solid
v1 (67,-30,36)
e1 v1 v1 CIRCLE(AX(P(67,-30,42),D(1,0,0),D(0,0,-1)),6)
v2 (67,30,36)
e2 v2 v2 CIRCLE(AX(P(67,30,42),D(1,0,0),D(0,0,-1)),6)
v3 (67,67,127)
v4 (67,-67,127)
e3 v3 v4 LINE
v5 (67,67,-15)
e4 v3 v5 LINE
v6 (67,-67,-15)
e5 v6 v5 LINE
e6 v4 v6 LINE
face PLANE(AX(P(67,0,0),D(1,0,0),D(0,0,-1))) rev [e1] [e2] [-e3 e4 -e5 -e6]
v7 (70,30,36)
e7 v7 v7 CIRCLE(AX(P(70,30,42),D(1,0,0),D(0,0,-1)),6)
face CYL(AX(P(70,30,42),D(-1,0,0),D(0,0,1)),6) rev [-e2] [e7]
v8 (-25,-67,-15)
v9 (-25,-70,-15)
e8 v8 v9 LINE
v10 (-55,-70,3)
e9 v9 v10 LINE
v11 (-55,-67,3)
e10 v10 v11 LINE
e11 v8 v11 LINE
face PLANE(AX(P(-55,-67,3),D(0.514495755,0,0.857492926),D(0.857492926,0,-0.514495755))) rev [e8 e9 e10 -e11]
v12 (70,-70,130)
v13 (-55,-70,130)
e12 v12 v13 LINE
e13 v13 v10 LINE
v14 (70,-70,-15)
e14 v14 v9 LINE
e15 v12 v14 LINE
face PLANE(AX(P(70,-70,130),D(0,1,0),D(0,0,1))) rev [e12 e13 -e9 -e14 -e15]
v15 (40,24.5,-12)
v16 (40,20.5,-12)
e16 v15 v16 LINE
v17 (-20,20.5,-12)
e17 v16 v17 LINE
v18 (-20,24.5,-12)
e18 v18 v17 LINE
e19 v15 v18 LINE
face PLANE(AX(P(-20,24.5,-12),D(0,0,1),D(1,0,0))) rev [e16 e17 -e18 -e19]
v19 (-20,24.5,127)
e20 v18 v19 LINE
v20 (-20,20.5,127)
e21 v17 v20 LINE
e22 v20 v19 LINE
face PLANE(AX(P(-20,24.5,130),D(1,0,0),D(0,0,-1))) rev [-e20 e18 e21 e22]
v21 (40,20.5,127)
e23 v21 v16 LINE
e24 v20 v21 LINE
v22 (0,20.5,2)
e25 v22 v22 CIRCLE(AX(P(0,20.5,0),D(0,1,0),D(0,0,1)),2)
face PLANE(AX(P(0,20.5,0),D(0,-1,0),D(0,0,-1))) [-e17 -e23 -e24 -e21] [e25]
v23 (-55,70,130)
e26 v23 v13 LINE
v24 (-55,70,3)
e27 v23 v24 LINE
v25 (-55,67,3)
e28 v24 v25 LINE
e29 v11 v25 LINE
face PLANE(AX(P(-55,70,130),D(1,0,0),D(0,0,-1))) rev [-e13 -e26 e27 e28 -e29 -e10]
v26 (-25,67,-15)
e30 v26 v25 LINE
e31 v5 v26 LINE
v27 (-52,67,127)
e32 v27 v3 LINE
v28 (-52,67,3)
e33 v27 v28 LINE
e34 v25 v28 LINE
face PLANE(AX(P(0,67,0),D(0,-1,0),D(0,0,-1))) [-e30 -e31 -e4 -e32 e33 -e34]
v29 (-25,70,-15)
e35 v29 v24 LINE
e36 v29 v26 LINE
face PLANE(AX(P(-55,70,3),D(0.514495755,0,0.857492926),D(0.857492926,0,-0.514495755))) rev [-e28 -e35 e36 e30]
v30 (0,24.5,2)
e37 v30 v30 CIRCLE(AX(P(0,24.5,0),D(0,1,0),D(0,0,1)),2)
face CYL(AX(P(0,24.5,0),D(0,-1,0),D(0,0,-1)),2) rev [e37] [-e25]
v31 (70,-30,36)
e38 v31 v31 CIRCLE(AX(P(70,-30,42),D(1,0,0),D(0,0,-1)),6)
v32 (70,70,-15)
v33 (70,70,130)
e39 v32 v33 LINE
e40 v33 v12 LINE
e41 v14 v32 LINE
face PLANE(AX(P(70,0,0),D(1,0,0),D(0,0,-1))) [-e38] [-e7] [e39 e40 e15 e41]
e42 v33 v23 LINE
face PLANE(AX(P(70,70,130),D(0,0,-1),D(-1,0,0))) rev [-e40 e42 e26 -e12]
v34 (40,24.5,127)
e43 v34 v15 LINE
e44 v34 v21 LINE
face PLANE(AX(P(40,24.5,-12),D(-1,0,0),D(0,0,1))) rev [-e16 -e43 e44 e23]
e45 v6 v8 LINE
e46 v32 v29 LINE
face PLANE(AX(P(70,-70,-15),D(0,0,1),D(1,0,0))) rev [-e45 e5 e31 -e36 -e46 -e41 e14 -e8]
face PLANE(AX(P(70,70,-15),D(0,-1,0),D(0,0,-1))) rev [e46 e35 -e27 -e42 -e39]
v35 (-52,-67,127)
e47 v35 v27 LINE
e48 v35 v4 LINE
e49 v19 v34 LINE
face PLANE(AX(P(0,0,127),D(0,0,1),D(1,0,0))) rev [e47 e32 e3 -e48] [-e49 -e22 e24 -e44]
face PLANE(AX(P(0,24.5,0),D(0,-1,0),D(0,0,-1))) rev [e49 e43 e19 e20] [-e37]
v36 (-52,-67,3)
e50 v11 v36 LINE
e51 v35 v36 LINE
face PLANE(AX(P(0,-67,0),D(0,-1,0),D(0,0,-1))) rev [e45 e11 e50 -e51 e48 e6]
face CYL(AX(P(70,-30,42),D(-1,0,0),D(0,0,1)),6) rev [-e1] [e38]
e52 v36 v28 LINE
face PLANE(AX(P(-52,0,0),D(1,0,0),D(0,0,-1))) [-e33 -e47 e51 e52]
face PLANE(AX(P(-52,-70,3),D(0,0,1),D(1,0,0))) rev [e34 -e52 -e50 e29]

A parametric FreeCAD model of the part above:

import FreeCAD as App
import Part
import Sketcher

V = App.Vector

doc = App.newDocument("Part")
body = doc.addObject("PartDesign::Body", "Body")

# Sketch on YZ plane
sketch1 = body.newObject("Sketcher::SketchObject", "Sketch")
sketch1.AttachmentSupport = (doc.getObject("YZ_Plane"), [""])
sketch1.MapMode = "FlatFace"
sketch1.AttachmentOffset = App.Placement(V(0, 0, 67), App.Rotation())
sketch1.addGeometry([
    Part.LineSegment(V(70, 130, 0), V(-70, 130, 0)),  # 0
    Part.LineSegment(V(-70, 130, 0), V(-70, -15, 0)),  # 1
    Part.LineSegment(V(-70, -15, 0), V(70, -15, 0)),  # 2
    Part.LineSegment(V(70, -15, 0), V(70, 130, 0)),  # 3
    Part.Circle(V(-30, 42, 0), V(0, 0, 1), 6),  # 4
    Part.Circle(V(30, 42, 0), V(0, 0, 1), 6),  # 5
], False)
sketch1.addConstraint([
    Sketcher.Constraint("Coincident", 0, 2, 1, 1),
    Sketcher.Constraint("Coincident", 1, 2, 2, 1),
    Sketcher.Constraint("Coincident", 2, 2, 3, 1),
    Sketcher.Constraint("Coincident", 3, 2, 0, 1),
    Sketcher.Constraint("Horizontal", 0),
    Sketcher.Constraint("Vertical", 1),
    Sketcher.Constraint("Horizontal", 2),
    Sketcher.Constraint("Vertical", 3),
    Sketcher.Constraint("Equal", 4, 5),
    Sketcher.Constraint("Symmetric", 4, 3, 5, 3, -2),
    Sketcher.Constraint("Diameter", 4, 12.0),
    Sketcher.Constraint("DistanceX", 0, 2, 0, 1, 140.0),
    Sketcher.Constraint("DistanceY", 1, 2, 1, 1, 145.0),
    Sketcher.Constraint("DistanceX", 4, 3, -1, 1, 30.0),
    Sketcher.Constraint("DistanceY", -1, 1, 4, 3, 42.0),
    Sketcher.Constraint("DistanceX", 0, 2, -1, 1, 70.0),
    Sketcher.Constraint("DistanceY", -1, 1, 0, 2, 130.0),
])
pad1 = body.newObject("PartDesign::Pad", "Pad")
pad1.Profile = sketch1
pad1.Length = 3
body2 = doc.addObject("PartDesign::Body", "Body001")

# Sketch on YZ plane
sketch2 = body2.newObject("Sketcher::SketchObject", "Sketch001")
sketch2.AttachmentSupport = (doc.getObject("YZ_Plane001"), [""])
sketch2.MapMode = "FlatFace"
sketch2.AttachmentOffset = App.Placement(V(0, 0, -55), App.Rotation())
sketch2.addGeometry([
    Part.LineSegment(V(70, 130, 0), V(-70, 130, 0)),
    Part.LineSegment(V(-70, 130, 0), V(-70, 3, 0)),
    Part.LineSegment(V(-70, 3, 0), V(70, 3, 0)),
    Part.LineSegment(V(70, 3, 0), V(70, 130, 0)),
], False)
sketch2.addConstraint([
    Sketcher.Constraint("Coincident", 0, 2, 1, 1),
    Sketcher.Constraint("Coincident", 1, 2, 2, 1),
    Sketcher.Constraint("Coincident", 2, 2, 3, 1),
    Sketcher.Constraint("Coincident", 3, 2, 0, 1),
    Sketcher.Constraint("Horizontal", 0),
    Sketcher.Constraint("Vertical", 1),
    Sketcher.Constraint("Horizontal", 2),
    Sketcher.Constraint("Vertical", 3),
    Sketcher.Constraint("DistanceX", 0, 2, 0, 1, 140.0),
    Sketcher.Constraint("DistanceY", 1, 2, 1, 1, 127.0),
    Sketcher.Constraint("DistanceX", 0, 2, -1, 1, 70.0),
    Sketcher.Constraint("DistanceY", -1, 1, 0, 2, 130.0),
])
pad2 = body2.newObject("PartDesign::Pad", "Pad001")
pad2.Profile = sketch2
pad2.Length = 3
body.AllowCompound = True
doc.recompute()

boolean = body.newObject("PartDesign::Boolean", "Boolean")
boolean.Type = "Fuse"
boolean.addObjects([body2])

# Sketch on XY plane
sketch3 = body.newObject("Sketcher::SketchObject", "Sketch002")
sketch3.AttachmentSupport = (doc.getObject("XY_Plane"), [""])
sketch3.MapMode = "FlatFace"
sketch3.AttachmentOffset = App.Placement(V(0, 0, 127), App.Rotation())
sketch3.addGeometry([
    Part.LineSegment(V(-55, 70, 0), V(-55, -70, 0)),
    Part.LineSegment(V(-55, -70, 0), V(70, -70, 0)),
    Part.LineSegment(V(70, -70, 0), V(70, 70, 0)),
    Part.LineSegment(V(70, 70, 0), V(-55, 70, 0)),
], False)
sketch3.addConstraint([
    Sketcher.Constraint("Coincident", 0, 2, 1, 1),
    Sketcher.Constraint("Coincident", 1, 2, 2, 1),
    Sketcher.Constraint("Coincident", 2, 2, 3, 1),
    Sketcher.Constraint("Coincident", 3, 2, 0, 1),
    Sketcher.Constraint("Vertical", 0),
    Sketcher.Constraint("Horizontal", 1),
    Sketcher.Constraint("Vertical", 2),
    Sketcher.Constraint("Horizontal", 3),
    Sketcher.Constraint("DistanceX", 1, 1, 1, 2, 125.0),
    Sketcher.Constraint("DistanceY", 0, 2, 0, 1, 140.0),
    Sketcher.Constraint("DistanceX", 0, 2, -1, 1, 55.0),
    Sketcher.Constraint("DistanceY", 0, 2, -1, 1, 70.0),
])
pad3 = body.newObject("PartDesign::Pad", "Pad002")
pad3.Profile = sketch3
pad3.Length = 3

# Sketch on XZ plane
sketch4 = body.newObject("Sketcher::SketchObject", "Sketch003")
sketch4.AttachmentSupport = (doc.getObject("XZ_Plane"), [""])
sketch4.MapMode = "FlatFace"
sketch4.AttachmentOffset = App.Placement(V(0, 0, -67), App.Rotation())
sketch4.addGeometry([
    Part.LineSegment(V(70, -15, 0), V(-25, -15, 0)),  # 0
    Part.LineSegment(V(-25, -15, 0), V(-55, 3, 0)),  # 1
    Part.LineSegment(V(-55, 3, 0), V(-55, 130, 0)),  # 2
    Part.LineSegment(V(-55, 130, 0), V(70, 130, 0)),  # 3
    Part.LineSegment(V(70, 130, 0), V(70, -15, 0)),  # 4
], False)
sketch4.addConstraint([
    Sketcher.Constraint("Coincident", 0, 2, 1, 1),
    Sketcher.Constraint("Coincident", 1, 2, 2, 1),
    Sketcher.Constraint("Coincident", 2, 2, 3, 1),
    Sketcher.Constraint("Coincident", 3, 2, 4, 1),
    Sketcher.Constraint("Coincident", 4, 2, 0, 1),
    Sketcher.Constraint("Horizontal", 0),
    Sketcher.Constraint("Vertical", 2),
    Sketcher.Constraint("Horizontal", 3),
    Sketcher.Constraint("Vertical", 4),
    Sketcher.Constraint("DistanceX", 0, 2, 0, 1, 95.0),
    Sketcher.Constraint("DistanceX", 3, 1, 3, 2, 125.0),
    Sketcher.Constraint("DistanceY", 2, 1, 2, 2, 127.0),
    Sketcher.Constraint("DistanceY", 4, 2, 4, 1, 145.0),
    Sketcher.Constraint("DistanceX", 0, 2, -1, 1, 25.0),
    Sketcher.Constraint("DistanceY", 0, 2, -1, 1, 15.0),
])
pad4 = body.newObject("PartDesign::Pad", "Pad003")
pad4.Profile = sketch4
pad4.Length = 3
pad4.Reversed = True

# Sketch on XZ plane
sketch5 = body.newObject("Sketcher::SketchObject", "Sketch004")
sketch5.AttachmentSupport = (doc.getObject("XZ_Plane"), [""])
sketch5.MapMode = "FlatFace"
sketch5.AttachmentOffset = App.Placement(V(0, 0, 70), App.Rotation())
sketch5.addGeometry([
    Part.LineSegment(V(70, -15, 0), V(-25, -15, 0)),  # 0
    Part.LineSegment(V(-25, -15, 0), V(-55, 3, 0)),  # 1
    Part.LineSegment(V(-55, 3, 0), V(-55, 130, 0)),  # 2
    Part.LineSegment(V(-55, 130, 0), V(70, 130, 0)),  # 3
    Part.LineSegment(V(70, 130, 0), V(70, -15, 0)),  # 4
], False)
sketch5.addConstraint([
    Sketcher.Constraint("Coincident", 0, 2, 1, 1),
    Sketcher.Constraint("Coincident", 1, 2, 2, 1),
    Sketcher.Constraint("Coincident", 2, 2, 3, 1),
    Sketcher.Constraint("Coincident", 3, 2, 4, 1),
    Sketcher.Constraint("Coincident", 4, 2, 0, 1),
    Sketcher.Constraint("Horizontal", 0),
    Sketcher.Constraint("Vertical", 2),
    Sketcher.Constraint("Horizontal", 3),
    Sketcher.Constraint("Vertical", 4),
    Sketcher.Constraint("DistanceX", 0, 2, 0, 1, 95.0),
    Sketcher.Constraint("DistanceX", 3, 1, 3, 2, 125.0),
    Sketcher.Constraint("DistanceY", 2, 1, 2, 2, 127.0),
    Sketcher.Constraint("DistanceY", 4, 2, 4, 1, 145.0),
    Sketcher.Constraint("DistanceX", 0, 2, -1, 1, 25.0),
    Sketcher.Constraint("DistanceY", 0, 2, -1, 1, 15.0),
])
pad5 = body.newObject("PartDesign::Pad", "Pad004")
pad5.Profile = sketch5
pad5.Length = 3
pad5.Reversed = True

# Sketch on XZ plane
sketch6 = body.newObject("Sketcher::SketchObject", "Sketch005")
sketch6.AttachmentSupport = (doc.getObject("XZ_Plane"), [""])
sketch6.MapMode = "FlatFace"
sketch6.AttachmentOffset = App.Placement(V(0, 0, -20.5), App.Rotation())
sketch6.addGeometry([
    Part.LineSegment(V(-20, -12, 0), V(-20, 130, 0)),  # 0
    Part.LineSegment(V(-20, 130, 0), V(40, 130, 0)),  # 1
    Part.LineSegment(V(40, 130, 0), V(40, -12, 0)),  # 2
    Part.LineSegment(V(40, -12, 0), V(-20, -12, 0)),  # 3
    Part.Circle(V(0, 0, 0), V(0, 0, 1), 2),  # 4
], False)
sketch6.addConstraint([
    Sketcher.Constraint("Coincident", 0, 2, 1, 1),
    Sketcher.Constraint("Coincident", 1, 2, 2, 1),
    Sketcher.Constraint("Coincident", 2, 2, 3, 1),
    Sketcher.Constraint("Coincident", 3, 2, 0, 1),
    Sketcher.Constraint("Vertical", 0),
    Sketcher.Constraint("Horizontal", 1),
    Sketcher.Constraint("Vertical", 2),
    Sketcher.Constraint("Horizontal", 3),
    Sketcher.Constraint("Coincident", 4, 3, -1, 1),
    Sketcher.Constraint("Diameter", 4, 4.0),
    Sketcher.Constraint("DistanceX", 1, 1, 1, 2, 60.0),
    Sketcher.Constraint("DistanceY", 0, 1, 0, 2, 142.0),
    Sketcher.Constraint("DistanceX", 0, 2, -1, 1, 20.0),
    Sketcher.Constraint("DistanceY", -1, 1, 0, 2, 130.0),
])
pad6 = body.newObject("PartDesign::Pad", "Pad005")
pad6.Profile = sketch6
pad6.Length = 4
pad6.Reversed = True

doc.recompute()
